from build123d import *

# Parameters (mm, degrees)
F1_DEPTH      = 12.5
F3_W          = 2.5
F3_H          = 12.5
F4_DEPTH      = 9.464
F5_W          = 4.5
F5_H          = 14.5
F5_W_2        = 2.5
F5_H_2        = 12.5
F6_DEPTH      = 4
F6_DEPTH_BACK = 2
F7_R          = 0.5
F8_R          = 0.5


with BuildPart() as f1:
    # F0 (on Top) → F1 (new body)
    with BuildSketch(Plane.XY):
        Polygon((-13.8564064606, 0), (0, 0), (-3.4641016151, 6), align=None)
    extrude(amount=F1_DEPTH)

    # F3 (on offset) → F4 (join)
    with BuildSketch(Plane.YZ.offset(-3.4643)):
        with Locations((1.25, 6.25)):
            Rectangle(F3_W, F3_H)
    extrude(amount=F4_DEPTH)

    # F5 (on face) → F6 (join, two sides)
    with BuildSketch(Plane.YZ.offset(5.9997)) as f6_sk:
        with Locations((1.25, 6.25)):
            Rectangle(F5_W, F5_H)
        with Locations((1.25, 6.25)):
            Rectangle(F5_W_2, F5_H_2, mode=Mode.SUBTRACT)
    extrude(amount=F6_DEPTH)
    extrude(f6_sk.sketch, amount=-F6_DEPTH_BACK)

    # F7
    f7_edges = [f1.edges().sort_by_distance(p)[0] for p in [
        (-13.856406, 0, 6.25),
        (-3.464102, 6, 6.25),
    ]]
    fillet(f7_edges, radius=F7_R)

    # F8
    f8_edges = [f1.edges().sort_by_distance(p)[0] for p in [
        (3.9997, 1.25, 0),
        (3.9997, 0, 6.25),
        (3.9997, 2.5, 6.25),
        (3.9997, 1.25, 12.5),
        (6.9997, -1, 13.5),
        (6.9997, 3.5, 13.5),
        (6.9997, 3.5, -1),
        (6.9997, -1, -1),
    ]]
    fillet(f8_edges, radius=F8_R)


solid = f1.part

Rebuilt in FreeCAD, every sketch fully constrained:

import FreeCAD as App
import Part
import Sketcher
Q = App.Units.Quantity


def edges_at(feature, points):
    """Names of the edges that pass closest to the given points."""
    edges = feature.Shape.Edges
    near = lambda p: min(range(len(edges)), key=lambda i: edges[i].distToShape(Part.Vertex(*p))[0])
    return sorted({f"Edge{near(p) + 1}" for p in points})


def add_polygon(sketch, points):
    """Adds a closed chain of lines whose ends are joined by coincident constraints."""
    first, n = sketch.GeometryCount, len(points)
    for a, b in zip(points, points[1:] + points[:1]):
        sketch.addGeometry(Part.LineSegment(App.Vector(*a, 0), App.Vector(*b, 0)), False)
    for i in range(n):
        sketch.addConstraint(Sketcher.Constraint("Coincident", first + i, 2, first + (i + 1) % n, 1))

doc = App.newDocument("Part")
body = doc.addObject("PartDesign::Body", "Body")

# Sketch on XY plane
sketch1 = body.newObject("Sketcher::SketchObject", "Sketch")
sketch1.AttachmentSupport = (doc.getObject("XY_Plane"), [""])
sketch1.MapMode = "FlatFace"
add_polygon(sketch1, [(-14, 0), (0, 0), (-3, 6)])  # lines 0-2
sketch1.addConstraint([
    Sketcher.Constraint("Horizontal", 0),
    Sketcher.Constraint("Coincident", 0, 2, -1, 1),
    Sketcher.Constraint("Perpendicular", 1, 2),
    Sketcher.Constraint("Angle", 1, Q("120 deg")),
    Sketcher.Constraint("Distance", 2, Q("12 mm")),
])
pad1 = body.newObject("PartDesign::Pad", "Pad")
pad1.Profile = sketch1
pad1.Length = 12.5

# Sketch on YZ plane
sketch2 = body.newObject("Sketcher::SketchObject", "Sketch001")
sketch2.AttachmentSupport = (doc.getObject("YZ_Plane"), [""])
sketch2.MapMode = "FlatFace"
sketch2.AttachmentOffset = App.Placement(App.Vector(0, 0, -3.4643), App.Rotation())
add_polygon(sketch2, [(0, 12.5), (0, 0), (2.5, 0), (2.5, 12.5)])  # lines 0-3
sketch2.addConstraint([
    Sketcher.Constraint("Vertical", 0),
    Sketcher.Constraint("Horizontal", 1),
    Sketcher.Constraint("Vertical", 2),
    Sketcher.Constraint("Horizontal", 3),
    Sketcher.Constraint("Coincident", 0, 2, -1, 1),
    Sketcher.Constraint("DistanceX", 1, 1, 1, 2, Q("2.5 mm")),
    Sketcher.Constraint("DistanceY", 0, 2, 0, 1, Q("12.5 mm")),
])
pad2 = body.newObject("PartDesign::Pad", "Pad001")
pad2.Profile = sketch2
pad2.Length = 9.464

# Sketch on YZ plane
sketch3 = body.newObject("Sketcher::SketchObject", "Sketch002")
sketch3.AttachmentSupport = (doc.getObject("YZ_Plane"), [""])
sketch3.MapMode = "FlatFace"
sketch3.AttachmentOffset = App.Placement(App.Vector(0, 0, 5.9997), App.Rotation())
add_polygon(sketch3, [(-1, 13.5), (-1, -1), (3.5, -1), (3.5, 13.5)])  # lines 0-3
add_polygon(sketch3, [(2.5, 0), (0, 0), (0, 12.5), (2.5, 12.5)])  # lines 4-7
sketch3.addConstraint([
    Sketcher.Constraint("Vertical", 0),
    Sketcher.Constraint("Horizontal", 1),
    Sketcher.Constraint("Vertical", 2),
    Sketcher.Constraint("Horizontal", 3),
    Sketcher.Constraint("Horizontal", 4),
    Sketcher.Constraint("Vertical", 5),
    Sketcher.Constraint("Horizontal", 6),
    Sketcher.Constraint("Vertical", 7),
    Sketcher.Constraint("Coincident", 4, 2, -1, 1),
    Sketcher.Constraint("DistanceX", 1, 1, 1, 2, Q("4.5 mm")),
    Sketcher.Constraint("DistanceX", 4, 2, 4, 1, Q("2.5 mm")),
    Sketcher.Constraint("DistanceY", 0, 2, 0, 1, Q("14.5 mm")),
    Sketcher.Constraint("DistanceY", 5, 1, 5, 2, Q("12.5 mm")),
    Sketcher.Constraint("DistanceX", 0, 2, -1, 1, Q("1 mm")),
    Sketcher.Constraint("DistanceY", 0, 2, -1, 1, Q("1 mm")),
])
pad3 = body.newObject("PartDesign::Pad", "Pad002")
pad3.Profile = sketch3
pad3.Type = "TwoLengths"
pad3.Length = 4
pad3.Length2 = 2
doc.recompute()

fillet = body.newObject("PartDesign::Fillet", "Fillet")
fillet.Base = (pad3, edges_at(pad3, [(-13.856, 0, 6.25), (-3.464, 6, 6.25)]))
fillet.Radius = 0.5
doc.recompute()

fillet2 = body.newObject("PartDesign::Fillet", "Fillet001")
fillet2.Base = (fillet, edges_at(fillet, [
    (4, 1.25, 0),
    (4, 0, 6.25),
    (4, 2.5, 6.25),
    (4, 1.25, 12.5),
    (7, -1, 13.5),
    (7, 3.5, 13.5),
    (7, 3.5, -1),
    (7, -1, -1),
]))
fillet2.Radius = 0.5

doc.recompute()
